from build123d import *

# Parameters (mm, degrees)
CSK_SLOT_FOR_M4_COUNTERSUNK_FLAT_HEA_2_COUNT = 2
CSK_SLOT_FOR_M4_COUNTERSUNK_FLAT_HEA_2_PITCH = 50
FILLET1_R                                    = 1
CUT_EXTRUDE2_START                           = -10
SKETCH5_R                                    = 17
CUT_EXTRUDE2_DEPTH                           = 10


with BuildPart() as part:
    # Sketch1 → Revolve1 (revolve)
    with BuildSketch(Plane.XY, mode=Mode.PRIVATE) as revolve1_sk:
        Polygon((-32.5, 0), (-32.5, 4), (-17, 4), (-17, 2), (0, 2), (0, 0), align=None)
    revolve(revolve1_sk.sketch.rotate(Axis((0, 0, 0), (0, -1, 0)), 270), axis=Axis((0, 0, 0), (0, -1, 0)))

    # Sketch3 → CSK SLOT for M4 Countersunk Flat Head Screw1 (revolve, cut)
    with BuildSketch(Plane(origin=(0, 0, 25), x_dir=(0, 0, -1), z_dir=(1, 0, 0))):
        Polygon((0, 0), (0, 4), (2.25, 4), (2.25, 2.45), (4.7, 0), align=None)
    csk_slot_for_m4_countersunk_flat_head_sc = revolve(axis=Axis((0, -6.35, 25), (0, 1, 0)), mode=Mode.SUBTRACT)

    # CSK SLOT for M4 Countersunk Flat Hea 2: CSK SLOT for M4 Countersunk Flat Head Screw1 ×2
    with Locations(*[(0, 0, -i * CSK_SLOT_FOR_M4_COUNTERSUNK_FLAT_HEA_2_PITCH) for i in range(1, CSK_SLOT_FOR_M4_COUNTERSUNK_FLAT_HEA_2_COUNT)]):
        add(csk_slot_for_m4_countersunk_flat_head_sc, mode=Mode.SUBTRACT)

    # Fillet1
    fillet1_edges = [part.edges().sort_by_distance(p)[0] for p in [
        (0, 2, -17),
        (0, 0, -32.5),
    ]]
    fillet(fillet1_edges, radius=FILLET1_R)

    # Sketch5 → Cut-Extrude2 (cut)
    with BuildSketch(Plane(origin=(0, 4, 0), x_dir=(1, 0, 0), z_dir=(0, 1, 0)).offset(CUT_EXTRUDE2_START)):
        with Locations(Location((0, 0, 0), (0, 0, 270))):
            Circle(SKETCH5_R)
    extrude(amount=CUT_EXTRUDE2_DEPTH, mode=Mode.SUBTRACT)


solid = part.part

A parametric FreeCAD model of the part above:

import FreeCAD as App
import Part
import Sketcher

V = App.Vector
Q = App.Units.Quantity


def edges_at(feature, points):
    """Names of the edges that pass closest to the given points."""
    edges = feature.Shape.Edges
    near = lambda p: min(range(len(edges)), key=lambda i: edges[i].distToShape(Part.Vertex(*p))[0])
    return sorted({f"Edge{near(p) + 1}" for p in points})

doc = App.newDocument("Part")
body = doc.addObject("PartDesign::Body", "Body")

sketch1 = doc.addObject("Sketcher::SketchObject", "Sketch")
body.addObject(sketch1)
sketch1.AttachmentSupport = (doc.XY_Plane, [""])
sketch1.MapMode = "FlatFace"
sketch1.addGeometry([
    Part.LineSegment(V(-32.5, 4, 0), V(-32.5, 0, 0)),
    Part.LineSegment(V(-32.5, 0, 0), V(0, 0, 0)),
    Part.LineSegment(V(0, 0, 0), V(0, 2, 0)),
    Part.LineSegment(V(0, 2, 0), V(-17, 2, 0)),
    Part.LineSegment(V(-17, 2, 0), V(-17, 4, 0)),
    Part.LineSegment(V(-17, 4, 0), V(-32.5, 4, 0)),
], False)
sketch1.addConstraint([
    Sketcher.Constraint("Coincident", 0, 2, 1, 1),
    Sketcher.Constraint("Coincident", 1, 2, 2, 1),
    Sketcher.Constraint("Coincident", 2, 2, 3, 1),
    Sketcher.Constraint("Coincident", 3, 2, 4, 1),
    Sketcher.Constraint("Coincident", 4, 2, 5, 1),
    Sketcher.Constraint("Coincident", 5, 2, 0, 1),
    Sketcher.Constraint("Vertical", 0),
    Sketcher.Constraint("Horizontal", 1),
    Sketcher.Constraint("Vertical", 2),
    Sketcher.Constraint("Horizontal", 3),
    Sketcher.Constraint("Vertical", 4),
    Sketcher.Constraint("Horizontal", 5),
    Sketcher.Constraint("Coincident", 1, 2, -1, 1),
    Sketcher.Constraint("Equal", 2, 4),
    Sketcher.Constraint("DistanceX", 3, 2, 3, 1, Q("17 mm")),
    Sketcher.Constraint("DistanceY", 0, 2, 0, 1, Q("4 mm")),
    Sketcher.Constraint("DistanceX", 1, 1, 1, 2, Q("32.5 mm")),
])
revolution = doc.addObject("PartDesign::Revolution", "Revolution")
body.addObject(revolution)
revolution.Profile = sketch1
revolution.ReferenceAxis = (sketch1, ["V_Axis"])
revolution.Angle = 360

sketch2 = doc.addObject("Sketcher::SketchObject", "Sketch001")
body.addObject(sketch2)
sketch2.AttachmentSupport = (doc.YZ_Plane, [""])
sketch2.MapMode = "FlatFace"
sketch2.addGeometry([
    Part.LineSegment(V(4, 25, 0), V(0, 25, 0)),
    Part.LineSegment(V(0, 25, 0), V(0, 20.3, 0)),
    Part.LineSegment(V(0, 20.3, 0), V(2.45, 22.75, 0)),
    Part.LineSegment(V(2.45, 22.75, 0), V(4, 22.75, 0)),
    Part.LineSegment(V(4, 22.75, 0), V(4, 25, 0)),
], False)
sketch2.addGeometry(Part.LineSegment(V(0, 25, 0), V(4, 25, 0)), True)
sketch2.addConstraint([
    Sketcher.Constraint("Coincident", 0, 2, 1, 1),
    Sketcher.Constraint("Coincident", 1, 2, 2, 1),
    Sketcher.Constraint("Coincident", 2, 2, 3, 1),
    Sketcher.Constraint("Coincident", 3, 2, 4, 1),
    Sketcher.Constraint("Coincident", 4, 2, 0, 1),
    Sketcher.Constraint("Horizontal", 0),
    Sketcher.Constraint("Vertical", 1),
    Sketcher.Constraint("Horizontal", 3),
    Sketcher.Constraint("Vertical", 4),
    Sketcher.Constraint("Horizontal", 5),
    Sketcher.Constraint("Coincident", 5, 1, 0, 2),
    Sketcher.Constraint("PointOnObject", 0, 2, -2),
    Sketcher.Constraint("Vertical", 3, 2, 5, 2),
    Sketcher.Constraint("DistanceX", 0, 2, 0, 1, Q("4 mm")),
    Sketcher.Constraint("Angle", 2, Q("45 deg")),
    Sketcher.Constraint("DistanceY", 1, 2, 1, 1, Q("4.7 mm")),
    Sketcher.Constraint("DistanceY", -1, 1, 0, 2, Q("25 mm")),
    Sketcher.Constraint("DistanceX", 3, 1, 3, 2, Q("1.55 mm")),
])
groove = doc.addObject("PartDesign::Groove", "Groove")
body.addObject(groove)
groove.Profile = sketch2
groove.ReferenceAxis = (sketch2, ["Axis0"])
groove.Angle = 360
doc.recompute()

linearpattern = doc.addObject("PartDesign::LinearPattern", "LinearPattern")
body.addObject(linearpattern)
linearpattern.Originals = [groove]
linearpattern.Direction = (doc.Z_Axis, [""])
linearpattern.Mode = "offset"
linearpattern.Offset = 50
linearpattern.Occurrences = 2
linearpattern.Reversed = True
body.Tip = linearpattern
doc.recompute()

fillet = doc.addObject("PartDesign::Fillet", "Fillet")
body.addObject(fillet)
fillet.Base = (linearpattern, edges_at(linearpattern, [(0, 2, -17), (0, 0, -32.5)]))
fillet.Radius = 1

sketch3 = doc.addObject("Sketcher::SketchObject", "Sketch002")
body.addObject(sketch3)
sketch3.AttachmentSupport = (doc.XZ_Plane, [""])
sketch3.MapMode = "FlatFace"
sketch3.AttachmentOffset = App.Placement(V(0, 0, 6), App.Rotation())
sketch3.addGeometry(Part.Circle(V(0, 0, 0), V(0, 0, 1), 17), False)
sketch3.addConstraint([
    Sketcher.Constraint("Coincident", 0, 3, -1, 1),
    Sketcher.Constraint("Diameter", 0, Q("34 mm")),
])
pocket1 = doc.addObject("PartDesign::Pocket", "Pocket")
body.addObject(pocket1)
pocket1.Profile = sketch3
pocket1.Length = 10

doc.recompute()
